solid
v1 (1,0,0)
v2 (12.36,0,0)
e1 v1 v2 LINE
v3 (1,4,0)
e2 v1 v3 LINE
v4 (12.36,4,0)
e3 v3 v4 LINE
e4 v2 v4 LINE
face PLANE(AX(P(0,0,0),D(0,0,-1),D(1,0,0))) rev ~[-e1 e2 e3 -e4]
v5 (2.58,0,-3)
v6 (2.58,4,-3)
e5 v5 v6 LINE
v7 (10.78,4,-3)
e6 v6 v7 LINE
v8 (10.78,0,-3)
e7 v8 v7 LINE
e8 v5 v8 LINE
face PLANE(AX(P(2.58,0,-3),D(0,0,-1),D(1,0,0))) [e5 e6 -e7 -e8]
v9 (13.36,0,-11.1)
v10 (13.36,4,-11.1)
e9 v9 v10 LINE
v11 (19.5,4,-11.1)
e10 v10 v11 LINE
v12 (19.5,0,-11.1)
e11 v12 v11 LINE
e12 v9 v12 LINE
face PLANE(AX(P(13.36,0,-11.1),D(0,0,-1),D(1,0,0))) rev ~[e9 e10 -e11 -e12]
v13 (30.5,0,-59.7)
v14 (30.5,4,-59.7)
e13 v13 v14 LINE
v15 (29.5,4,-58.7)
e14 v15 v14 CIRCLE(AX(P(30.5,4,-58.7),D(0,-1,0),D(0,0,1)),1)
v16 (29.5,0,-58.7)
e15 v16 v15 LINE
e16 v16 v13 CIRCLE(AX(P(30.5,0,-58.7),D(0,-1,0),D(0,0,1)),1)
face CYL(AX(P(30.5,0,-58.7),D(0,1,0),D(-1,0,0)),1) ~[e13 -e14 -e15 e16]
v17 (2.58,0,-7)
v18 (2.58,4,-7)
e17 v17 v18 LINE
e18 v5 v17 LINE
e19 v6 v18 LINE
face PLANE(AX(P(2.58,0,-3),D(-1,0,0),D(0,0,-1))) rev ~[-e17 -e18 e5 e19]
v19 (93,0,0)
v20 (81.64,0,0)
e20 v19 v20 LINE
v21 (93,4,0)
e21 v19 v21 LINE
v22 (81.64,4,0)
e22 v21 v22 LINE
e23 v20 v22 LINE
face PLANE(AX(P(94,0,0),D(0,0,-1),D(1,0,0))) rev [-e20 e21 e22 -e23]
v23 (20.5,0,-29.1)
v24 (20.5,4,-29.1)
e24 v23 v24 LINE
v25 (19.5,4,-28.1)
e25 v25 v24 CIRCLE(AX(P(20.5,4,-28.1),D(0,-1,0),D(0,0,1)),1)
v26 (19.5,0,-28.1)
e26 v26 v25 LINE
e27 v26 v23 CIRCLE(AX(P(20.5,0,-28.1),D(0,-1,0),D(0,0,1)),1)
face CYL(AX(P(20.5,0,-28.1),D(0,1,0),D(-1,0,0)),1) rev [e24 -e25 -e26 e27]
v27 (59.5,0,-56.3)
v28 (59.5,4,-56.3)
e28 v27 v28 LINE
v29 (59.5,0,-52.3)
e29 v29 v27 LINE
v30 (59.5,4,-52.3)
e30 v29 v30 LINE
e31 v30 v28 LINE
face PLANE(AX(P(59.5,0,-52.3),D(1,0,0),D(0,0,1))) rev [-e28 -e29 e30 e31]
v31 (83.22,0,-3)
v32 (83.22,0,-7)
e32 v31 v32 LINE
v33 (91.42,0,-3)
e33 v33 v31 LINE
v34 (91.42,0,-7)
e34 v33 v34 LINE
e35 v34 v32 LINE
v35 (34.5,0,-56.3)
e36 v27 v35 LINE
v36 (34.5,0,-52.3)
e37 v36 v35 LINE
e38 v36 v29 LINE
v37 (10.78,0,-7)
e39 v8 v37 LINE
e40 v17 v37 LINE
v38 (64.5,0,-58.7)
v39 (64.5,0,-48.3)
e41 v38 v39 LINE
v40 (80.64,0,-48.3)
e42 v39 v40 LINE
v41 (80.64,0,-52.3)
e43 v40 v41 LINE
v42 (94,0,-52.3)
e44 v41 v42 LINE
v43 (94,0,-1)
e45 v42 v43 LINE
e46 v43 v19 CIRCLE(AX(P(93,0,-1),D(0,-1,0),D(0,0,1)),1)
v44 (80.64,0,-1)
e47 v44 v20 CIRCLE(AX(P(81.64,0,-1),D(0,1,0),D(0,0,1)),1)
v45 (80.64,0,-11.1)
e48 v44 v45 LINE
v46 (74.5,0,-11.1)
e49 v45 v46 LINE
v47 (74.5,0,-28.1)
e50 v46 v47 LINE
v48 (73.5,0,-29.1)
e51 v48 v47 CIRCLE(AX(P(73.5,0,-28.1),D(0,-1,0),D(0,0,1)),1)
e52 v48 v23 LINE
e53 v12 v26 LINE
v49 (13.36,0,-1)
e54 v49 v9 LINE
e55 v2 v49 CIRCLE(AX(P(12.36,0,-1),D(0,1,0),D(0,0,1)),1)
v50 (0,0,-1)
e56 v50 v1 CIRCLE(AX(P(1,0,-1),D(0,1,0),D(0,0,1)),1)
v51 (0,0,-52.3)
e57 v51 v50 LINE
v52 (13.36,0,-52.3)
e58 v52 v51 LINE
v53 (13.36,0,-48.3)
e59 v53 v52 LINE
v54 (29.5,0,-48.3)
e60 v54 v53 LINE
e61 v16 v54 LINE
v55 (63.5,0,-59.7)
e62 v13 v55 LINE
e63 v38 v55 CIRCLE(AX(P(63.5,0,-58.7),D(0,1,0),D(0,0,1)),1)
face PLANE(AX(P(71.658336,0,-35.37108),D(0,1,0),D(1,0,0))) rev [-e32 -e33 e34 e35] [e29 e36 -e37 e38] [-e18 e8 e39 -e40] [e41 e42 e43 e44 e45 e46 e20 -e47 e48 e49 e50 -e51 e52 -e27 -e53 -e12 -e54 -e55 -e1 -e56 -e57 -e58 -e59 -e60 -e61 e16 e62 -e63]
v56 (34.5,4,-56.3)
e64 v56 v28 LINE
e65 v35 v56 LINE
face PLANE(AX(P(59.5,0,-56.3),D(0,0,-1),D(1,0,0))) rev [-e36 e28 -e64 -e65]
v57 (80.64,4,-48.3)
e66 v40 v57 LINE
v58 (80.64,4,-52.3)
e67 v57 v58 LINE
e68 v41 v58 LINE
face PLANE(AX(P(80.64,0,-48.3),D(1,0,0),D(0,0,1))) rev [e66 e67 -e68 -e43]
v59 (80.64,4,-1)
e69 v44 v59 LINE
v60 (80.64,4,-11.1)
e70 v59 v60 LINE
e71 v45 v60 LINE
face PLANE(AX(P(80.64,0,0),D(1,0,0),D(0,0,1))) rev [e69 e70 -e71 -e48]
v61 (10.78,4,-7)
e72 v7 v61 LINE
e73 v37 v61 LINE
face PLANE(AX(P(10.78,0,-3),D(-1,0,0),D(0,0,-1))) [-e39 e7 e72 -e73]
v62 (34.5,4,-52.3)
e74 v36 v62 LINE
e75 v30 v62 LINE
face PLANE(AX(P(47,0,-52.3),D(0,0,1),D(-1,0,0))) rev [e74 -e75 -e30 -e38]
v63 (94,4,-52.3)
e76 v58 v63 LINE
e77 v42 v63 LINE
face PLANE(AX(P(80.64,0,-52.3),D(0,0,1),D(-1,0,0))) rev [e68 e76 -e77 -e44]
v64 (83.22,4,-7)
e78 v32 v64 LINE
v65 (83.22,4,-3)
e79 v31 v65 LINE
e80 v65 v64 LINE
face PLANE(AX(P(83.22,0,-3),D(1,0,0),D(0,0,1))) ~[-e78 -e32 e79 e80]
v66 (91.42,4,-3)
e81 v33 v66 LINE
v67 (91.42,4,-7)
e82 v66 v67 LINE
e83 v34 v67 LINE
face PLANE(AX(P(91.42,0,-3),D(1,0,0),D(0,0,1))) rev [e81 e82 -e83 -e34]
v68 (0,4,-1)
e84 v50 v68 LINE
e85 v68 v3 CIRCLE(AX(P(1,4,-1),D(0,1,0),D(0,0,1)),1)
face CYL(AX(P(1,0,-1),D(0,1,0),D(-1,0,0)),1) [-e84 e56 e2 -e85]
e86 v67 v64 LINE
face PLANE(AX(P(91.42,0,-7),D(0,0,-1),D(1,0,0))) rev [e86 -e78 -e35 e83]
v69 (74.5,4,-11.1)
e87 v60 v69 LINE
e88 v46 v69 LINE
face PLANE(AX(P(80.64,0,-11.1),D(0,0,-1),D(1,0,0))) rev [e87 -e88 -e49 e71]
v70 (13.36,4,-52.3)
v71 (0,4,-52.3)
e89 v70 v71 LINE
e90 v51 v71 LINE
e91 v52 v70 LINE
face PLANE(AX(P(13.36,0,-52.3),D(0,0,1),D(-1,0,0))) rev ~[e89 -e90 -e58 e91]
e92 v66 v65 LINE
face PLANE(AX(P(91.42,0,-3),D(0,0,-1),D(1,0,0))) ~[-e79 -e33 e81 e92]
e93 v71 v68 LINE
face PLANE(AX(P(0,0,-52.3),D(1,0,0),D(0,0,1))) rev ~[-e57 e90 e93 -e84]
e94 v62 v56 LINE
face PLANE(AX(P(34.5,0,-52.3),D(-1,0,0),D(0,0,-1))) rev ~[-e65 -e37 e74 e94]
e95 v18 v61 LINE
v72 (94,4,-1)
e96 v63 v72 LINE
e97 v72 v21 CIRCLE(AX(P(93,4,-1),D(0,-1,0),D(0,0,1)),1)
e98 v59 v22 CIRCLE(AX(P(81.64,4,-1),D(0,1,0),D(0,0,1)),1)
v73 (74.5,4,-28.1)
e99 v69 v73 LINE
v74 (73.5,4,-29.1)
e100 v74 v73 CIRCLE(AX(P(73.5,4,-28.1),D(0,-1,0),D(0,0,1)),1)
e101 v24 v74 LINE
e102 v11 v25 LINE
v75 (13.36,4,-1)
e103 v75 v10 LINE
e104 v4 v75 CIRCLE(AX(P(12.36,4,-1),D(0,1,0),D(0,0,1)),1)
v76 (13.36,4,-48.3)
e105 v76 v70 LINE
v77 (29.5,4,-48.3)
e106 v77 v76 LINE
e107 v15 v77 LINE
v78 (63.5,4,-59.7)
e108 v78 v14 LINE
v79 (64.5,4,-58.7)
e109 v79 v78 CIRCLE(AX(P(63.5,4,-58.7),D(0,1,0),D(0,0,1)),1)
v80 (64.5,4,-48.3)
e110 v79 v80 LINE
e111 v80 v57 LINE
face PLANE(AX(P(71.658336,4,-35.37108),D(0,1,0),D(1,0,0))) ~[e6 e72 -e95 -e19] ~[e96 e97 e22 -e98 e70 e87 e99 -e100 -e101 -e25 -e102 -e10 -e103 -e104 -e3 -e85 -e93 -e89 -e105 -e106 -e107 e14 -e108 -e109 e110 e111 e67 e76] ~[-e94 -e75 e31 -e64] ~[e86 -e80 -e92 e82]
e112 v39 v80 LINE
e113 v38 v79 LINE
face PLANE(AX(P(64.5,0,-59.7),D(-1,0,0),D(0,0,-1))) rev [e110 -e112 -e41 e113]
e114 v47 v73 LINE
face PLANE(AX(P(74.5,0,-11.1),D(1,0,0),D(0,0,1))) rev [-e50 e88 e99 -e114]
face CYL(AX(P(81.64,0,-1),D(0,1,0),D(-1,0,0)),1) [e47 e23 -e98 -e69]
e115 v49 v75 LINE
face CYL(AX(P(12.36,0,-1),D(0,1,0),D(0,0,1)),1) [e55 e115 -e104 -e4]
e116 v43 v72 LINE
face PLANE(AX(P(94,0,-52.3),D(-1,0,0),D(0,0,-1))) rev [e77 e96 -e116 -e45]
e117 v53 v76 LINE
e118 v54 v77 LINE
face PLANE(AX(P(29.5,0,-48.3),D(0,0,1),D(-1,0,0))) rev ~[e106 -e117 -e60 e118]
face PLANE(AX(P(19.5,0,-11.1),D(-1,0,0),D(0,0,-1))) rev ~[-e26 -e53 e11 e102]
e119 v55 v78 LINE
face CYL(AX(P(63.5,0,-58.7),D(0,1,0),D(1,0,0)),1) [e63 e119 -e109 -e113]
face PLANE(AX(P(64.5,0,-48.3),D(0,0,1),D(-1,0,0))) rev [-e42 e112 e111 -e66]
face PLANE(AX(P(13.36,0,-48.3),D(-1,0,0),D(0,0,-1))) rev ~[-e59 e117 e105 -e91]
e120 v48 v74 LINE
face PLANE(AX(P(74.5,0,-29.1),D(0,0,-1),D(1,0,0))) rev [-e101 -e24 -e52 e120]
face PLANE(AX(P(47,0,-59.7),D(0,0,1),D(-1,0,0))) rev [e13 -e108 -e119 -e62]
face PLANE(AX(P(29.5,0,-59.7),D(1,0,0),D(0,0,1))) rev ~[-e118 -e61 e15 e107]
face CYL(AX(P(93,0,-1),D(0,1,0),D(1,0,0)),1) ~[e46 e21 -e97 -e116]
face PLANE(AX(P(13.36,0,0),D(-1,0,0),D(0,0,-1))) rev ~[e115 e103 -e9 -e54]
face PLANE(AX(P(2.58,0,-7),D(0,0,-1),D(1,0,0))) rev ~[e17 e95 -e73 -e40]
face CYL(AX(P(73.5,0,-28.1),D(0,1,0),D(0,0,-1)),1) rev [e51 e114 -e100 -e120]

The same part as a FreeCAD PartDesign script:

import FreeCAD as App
import Part
import Sketcher


def edges_at(feature, points):
    """Names of the edges that pass closest to the given points."""
    edges = feature.Shape.Edges
    near = lambda p: min(range(len(edges)), key=lambda i: edges[i].distToShape(Part.Vertex(*p))[0])
    return sorted({f"Edge{near(p) + 1}" for p in points})


def add_polygon(sketch, points):
    """Adds a closed chain of lines whose ends are joined by coincident constraints."""
    first, n = sketch.GeometryCount, len(points)
    for a, b in zip(points, points[1:] + points[:1]):
        sketch.addGeometry(Part.LineSegment(App.Vector(*a, 0), App.Vector(*b, 0)), False)
    for i in range(n):
        sketch.addConstraint(Sketcher.Constraint("Coincident", first + i, 2, first + (i + 1) % n, 1))

doc = App.newDocument("Part")
body = doc.addObject("PartDesign::Body", "Body")

sketch1 = doc.addObject("Sketcher::SketchObject", "Sketch")
body.addObject(sketch1)
sketch1.AttachmentSupport = (doc.XZ_Plane, [""])
sketch1.MapMode = "FlatFace"
add_polygon(sketch1, [(0, -52.3), (0, 0), (13.4, 0), (13.4, -11.1), (19.5, -11.1), (19.5, -29.1), (47, -29.1), (47, -52.3), (34.5, -52.3), (34.5, -56.3), (47, -56.3), (47, -59.7), (29.5, -59.7), (29.5, -48.3), (13.4, -48.3), (13.4, -52.3)])
add_polygon(sketch1, [(10.8, -3), (2.6, -3), (2.6, -7), (10.8, -7)])
sketch1.addConstraint(Sketcher.Constraint("Vertical", 0))
sketch1.addConstraint(Sketcher.Constraint("Horizontal", 1))
sketch1.addConstraint(Sketcher.Constraint("Vertical", 2))
sketch1.addConstraint(Sketcher.Constraint("Horizontal", 3))
sketch1.addConstraint(Sketcher.Constraint("Vertical", 4))
sketch1.addConstraint(Sketcher.Constraint("Horizontal", 5))
sketch1.addConstraint(Sketcher.Constraint("Vertical", 6))
sketch1.addConstraint(Sketcher.Constraint("Horizontal", 7))
sketch1.addConstraint(Sketcher.Constraint("Vertical", 8))
sketch1.addConstraint(Sketcher.Constraint("Horizontal", 9))
sketch1.addConstraint(Sketcher.Constraint("Vertical", 10))
sketch1.addConstraint(Sketcher.Constraint("Horizontal", 11))
sketch1.addConstraint(Sketcher.Constraint("Vertical", 12))
sketch1.addConstraint(Sketcher.Constraint("Horizontal", 13))
sketch1.addConstraint(Sketcher.Constraint("Vertical", 14))
sketch1.addConstraint(Sketcher.Constraint("Horizontal", 15))
sketch1.addConstraint(Sketcher.Constraint("Horizontal", 16))
sketch1.addConstraint(Sketcher.Constraint("Vertical", 17))
sketch1.addConstraint(Sketcher.Constraint("Horizontal", 18))
sketch1.addConstraint(Sketcher.Constraint("Vertical", 19))
sketch1.addConstraint(Sketcher.Constraint("Coincident", 0, 2, -1, 1))
sketch1.addConstraint(Sketcher.Constraint("Horizontal", 7, 2, 14, 2))
sketch1.addConstraint(Sketcher.Constraint("Vertical", 6, 2, 9, 2))
sketch1.addConstraint(Sketcher.Constraint("Vertical", 2, 2, 13, 2))
sketch1.addConstraint(Sketcher.Constraint("Equal", 8, 14))
sketch1.addConstraint(Sketcher.Constraint("Equal", 14, 17))
sketch1.addConstraint(Sketcher.Constraint("DistanceY", 4, 2, 4, 1, 18.0))
sketch1.addConstraint(Sketcher.Constraint("DistanceY", 8, 2, 8, 1, 4.0))
sketch1.addConstraint(Sketcher.Constraint("DistanceX", 5, 1, 5, 2, 27.5))
sketch1.addConstraint(Sketcher.Constraint("DistanceX", 7, 2, 7, 1, 12.5))
sketch1.addConstraint(Sketcher.Constraint("DistanceX", 11, 2, 11, 1, 17.5))
sketch1.addConstraint(Sketcher.Constraint("DistanceX", 16, 2, 16, 1, 8.2))
sketch1.addConstraint(Sketcher.Constraint("DistanceY", 0, 1, 0, 2, 52.3))
sketch1.addConstraint(Sketcher.Constraint("DistanceY", 2, 2, 2, 1, 11.1))
sketch1.addConstraint(Sketcher.Constraint("DistanceY", 10, 2, 10, 1, 3.4))
sketch1.addConstraint(Sketcher.Constraint("DistanceX", -1, 1, 5, 2, 47.0))
sketch1.addConstraint(Sketcher.Constraint("DistanceY", 16, 2, -1, 1, 3.0))
sketch1.addConstraint(Sketcher.Constraint("DistanceX", 1, 1, 1, 2, 13.36))
sketch1.addConstraint(Sketcher.Constraint("DistanceX", -1, 1, 16, 2, 2.58))
pad1 = doc.addObject("PartDesign::Pad", "Pad")
body.addObject(pad1)
pad1.Profile = sketch1
pad1.Length = 4
pad1.Reversed = True
doc.recompute()

fillet = doc.addObject("PartDesign::Fillet", "Fillet")
body.addObject(fillet)
fillet.Base = (pad1, edges_at(pad1, [
    (19.5, 2, -29.1),
    (13.36, 2, 0),
    (0, 2, 0),
    (29.5, 2, -59.7),
]))
fillet.Radius = 1
doc.recompute()

datumplane = doc.addObject("PartDesign::Plane", "DatumPlane")
body.addObject(datumplane)
datumplane.AttachmentSupport = (doc.YZ_Plane, [""])
datumplane.MapMode = "FlatFace"
datumplane.AttachmentOffset = App.Placement(App.Vector(0, 0, 47), App.Rotation())
mirrored = doc.addObject("PartDesign::Mirrored", "Mirrored")
body.addObject(mirrored)
mirrored.Originals = [pad1]
mirrored.MirrorPlane = (datumplane, [""])
body.Tip = mirrored
doc.recompute()

fillet2 = doc.addObject("PartDesign::Fillet", "Fillet001")
body.addObject(fillet2)
fillet2.Base = (mirrored, edges_at(mirrored, [
    (74.5, 2, -29.1),
    (80.64, 2, 0),
    (94, 2, 0),
    (64.5, 2, -59.7),
]))
fillet2.Radius = 1

doc.recompute()
